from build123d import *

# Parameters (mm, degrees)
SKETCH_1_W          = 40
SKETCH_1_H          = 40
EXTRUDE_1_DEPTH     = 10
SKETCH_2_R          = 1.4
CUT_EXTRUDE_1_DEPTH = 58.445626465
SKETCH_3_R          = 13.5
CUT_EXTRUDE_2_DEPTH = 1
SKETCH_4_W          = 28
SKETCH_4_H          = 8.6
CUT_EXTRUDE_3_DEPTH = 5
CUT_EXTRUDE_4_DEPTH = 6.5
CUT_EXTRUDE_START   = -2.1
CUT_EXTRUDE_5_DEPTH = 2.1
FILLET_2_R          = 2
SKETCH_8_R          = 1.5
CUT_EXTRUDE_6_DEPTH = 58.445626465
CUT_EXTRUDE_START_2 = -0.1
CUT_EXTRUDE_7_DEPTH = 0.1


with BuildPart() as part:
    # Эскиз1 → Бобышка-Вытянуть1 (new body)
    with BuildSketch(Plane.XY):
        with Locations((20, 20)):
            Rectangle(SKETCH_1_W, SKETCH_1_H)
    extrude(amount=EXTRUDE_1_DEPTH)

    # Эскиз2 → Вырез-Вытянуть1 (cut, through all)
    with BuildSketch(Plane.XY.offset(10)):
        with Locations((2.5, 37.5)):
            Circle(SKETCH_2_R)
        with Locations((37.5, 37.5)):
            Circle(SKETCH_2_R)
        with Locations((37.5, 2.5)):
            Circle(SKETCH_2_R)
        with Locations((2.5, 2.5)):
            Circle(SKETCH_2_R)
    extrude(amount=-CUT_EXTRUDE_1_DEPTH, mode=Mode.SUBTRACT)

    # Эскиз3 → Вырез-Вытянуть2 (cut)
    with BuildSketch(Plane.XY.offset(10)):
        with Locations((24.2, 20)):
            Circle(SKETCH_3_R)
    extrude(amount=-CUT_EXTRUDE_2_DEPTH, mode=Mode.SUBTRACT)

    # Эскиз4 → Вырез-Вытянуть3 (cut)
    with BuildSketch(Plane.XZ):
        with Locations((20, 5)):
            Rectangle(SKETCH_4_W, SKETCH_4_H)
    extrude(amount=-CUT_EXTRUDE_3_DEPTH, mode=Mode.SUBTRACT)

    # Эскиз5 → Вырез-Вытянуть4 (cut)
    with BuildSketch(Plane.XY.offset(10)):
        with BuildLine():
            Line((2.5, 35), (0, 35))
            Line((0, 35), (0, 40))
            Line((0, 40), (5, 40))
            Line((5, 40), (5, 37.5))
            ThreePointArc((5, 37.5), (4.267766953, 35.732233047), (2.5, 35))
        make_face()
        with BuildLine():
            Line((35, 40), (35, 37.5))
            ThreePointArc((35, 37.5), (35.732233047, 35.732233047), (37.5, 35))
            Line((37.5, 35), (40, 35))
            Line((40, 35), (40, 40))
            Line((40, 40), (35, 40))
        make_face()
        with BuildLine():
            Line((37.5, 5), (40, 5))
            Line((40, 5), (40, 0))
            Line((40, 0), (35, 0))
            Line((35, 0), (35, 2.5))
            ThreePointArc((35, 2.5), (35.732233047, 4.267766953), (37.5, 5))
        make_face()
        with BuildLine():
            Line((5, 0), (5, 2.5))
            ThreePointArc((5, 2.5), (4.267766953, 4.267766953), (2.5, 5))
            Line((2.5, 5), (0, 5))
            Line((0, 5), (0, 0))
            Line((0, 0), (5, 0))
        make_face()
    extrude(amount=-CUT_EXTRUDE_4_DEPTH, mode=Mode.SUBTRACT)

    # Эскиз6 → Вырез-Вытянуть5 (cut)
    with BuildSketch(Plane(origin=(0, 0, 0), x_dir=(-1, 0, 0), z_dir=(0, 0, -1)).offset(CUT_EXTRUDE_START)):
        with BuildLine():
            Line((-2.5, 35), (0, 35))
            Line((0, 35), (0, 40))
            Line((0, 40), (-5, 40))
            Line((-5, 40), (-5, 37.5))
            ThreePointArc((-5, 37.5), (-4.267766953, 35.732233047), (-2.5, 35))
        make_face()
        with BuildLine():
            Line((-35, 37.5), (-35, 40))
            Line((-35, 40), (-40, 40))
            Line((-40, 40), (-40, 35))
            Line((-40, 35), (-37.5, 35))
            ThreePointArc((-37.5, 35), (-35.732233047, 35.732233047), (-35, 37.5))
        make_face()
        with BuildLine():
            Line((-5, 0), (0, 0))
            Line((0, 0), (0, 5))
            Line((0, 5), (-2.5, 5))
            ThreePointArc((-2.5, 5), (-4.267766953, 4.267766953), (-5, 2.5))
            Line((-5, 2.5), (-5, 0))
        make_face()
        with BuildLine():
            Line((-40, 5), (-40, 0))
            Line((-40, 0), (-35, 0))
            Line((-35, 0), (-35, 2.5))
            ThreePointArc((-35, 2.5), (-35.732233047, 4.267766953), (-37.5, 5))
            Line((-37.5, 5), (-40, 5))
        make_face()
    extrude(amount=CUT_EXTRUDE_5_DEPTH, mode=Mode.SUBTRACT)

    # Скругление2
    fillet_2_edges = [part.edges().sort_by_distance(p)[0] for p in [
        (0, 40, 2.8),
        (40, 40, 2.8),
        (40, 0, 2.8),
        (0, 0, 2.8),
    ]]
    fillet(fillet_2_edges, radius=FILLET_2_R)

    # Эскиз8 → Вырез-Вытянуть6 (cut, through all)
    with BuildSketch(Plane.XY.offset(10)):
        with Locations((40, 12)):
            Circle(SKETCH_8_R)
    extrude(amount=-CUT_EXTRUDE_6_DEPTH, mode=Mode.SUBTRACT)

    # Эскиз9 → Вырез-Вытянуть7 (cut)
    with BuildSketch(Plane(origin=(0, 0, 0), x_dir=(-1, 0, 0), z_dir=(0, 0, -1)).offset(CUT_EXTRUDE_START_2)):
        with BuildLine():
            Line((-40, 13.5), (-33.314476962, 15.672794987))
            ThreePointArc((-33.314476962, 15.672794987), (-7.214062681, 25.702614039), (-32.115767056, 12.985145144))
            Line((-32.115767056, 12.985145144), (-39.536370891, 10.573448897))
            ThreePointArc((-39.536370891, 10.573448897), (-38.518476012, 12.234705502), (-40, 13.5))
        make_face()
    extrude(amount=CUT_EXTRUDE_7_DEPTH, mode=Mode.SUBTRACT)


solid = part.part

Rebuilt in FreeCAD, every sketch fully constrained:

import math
import FreeCAD as App
import Part
import Sketcher
from FreeCAD import Vector


def edges_at(feature, points):
    """Names of the edges that pass closest to the given points."""
    edges = feature.Shape.Edges
    near = lambda p: min(range(len(edges)), key=lambda i: edges[i].distToShape(Part.Vertex(*p))[0])
    return sorted({f"Edge{near(p) + 1}" for p in points})


def add_polygon(sketch, points):
    """Adds a closed chain of lines whose ends are joined by coincident constraints."""
    first, n = sketch.GeometryCount, len(points)
    for a, b in zip(points, points[1:] + points[:1]):
        sketch.addGeometry(Part.LineSegment(App.Vector(*a, 0), App.Vector(*b, 0)), False)
    for i in range(n):
        sketch.addConstraint(Sketcher.Constraint("Coincident", first + i, 2, first + (i + 1) % n, 1))

doc = App.newDocument("Part")
params = doc.addObject("Spreadsheet::Sheet", "Params")
for row, (alias, value) in enumerate([
    ("sketch1_width", "40 mm"),
    ("pad1_length", "10 mm"),
    ("sketch2_diameter", "2.8 mm"),
    ("sketch3_diameter", "27 mm"),
    ("pocket2_length", "1 mm"),
    ("sketch4_width", "28 mm"),
    ("sketch4_height", "8.6 mm"),
    ("pocket3_length", "5 mm"),
    ("sketch5_radius", "2.5 mm"),
    ("sketch5_width", "5 mm"),
    ("pocket4_length", "6.5 mm"),
    ("sketch6_radius", "2.5 mm"),
    ("sketch6_width", "5 mm"),
    ("pocket5_length", "2.1 mm"),
    ("fillet_radius", "2 mm"),
    ("sketch7_diameter", "3 mm"),
    ("sketch8_radius", "14 mm"),
    ("sketch8_radius2", "1.5 mm"),
    ("pocket7_length", "0.1 mm"),
], start=1):
    params.set(f"A{row}", alias)
    params.set(f"B{row}", "=" + value)
    params.setAlias(f"B{row}", alias)

body = doc.addObject("PartDesign::Body", "Body")

# Sketch on XY plane
sketch1 = body.newObject("Sketcher::SketchObject", "Sketch")
sketch1.AttachmentSupport = (doc.getObject("XY_Plane"), [""])
sketch1.MapMode = "FlatFace"
add_polygon(sketch1, [(0, 40), (0, 0), (40, 0), (40, 40)])  # lines 0-3
sketch1.addConstraint(Sketcher.Constraint("Vertical", 0))
sketch1.addConstraint(Sketcher.Constraint("Horizontal", 1))
sketch1.addConstraint(Sketcher.Constraint("Vertical", 2))
sketch1.addConstraint(Sketcher.Constraint("Horizontal", 3))
sketch1.addConstraint(Sketcher.Constraint("Coincident", 0, 2, -1, 1))
sketch1.addConstraint(Sketcher.Constraint("Equal", 3, 0))
sketch1.addConstraint(Sketcher.Constraint("DistanceX", 1, 1, 1, 2, 40.0))
sketch1.setExpression("Constraints[10]", "Params.sketch1_width")
pad1 = body.newObject("PartDesign::Pad", "Pad")
pad1.Profile = sketch1
pad1.setExpression("Length", "Params.pad1_length")

# Sketch on XY plane
sketch2 = body.newObject("Sketcher::SketchObject", "Sketch001")
sketch2.AttachmentSupport = (doc.getObject("XY_Plane"), [""])
sketch2.MapMode = "FlatFace"
sketch2.AttachmentOffset = App.Placement(Vector(0, 0, 10), App.Rotation())
sketch2.addGeometry(Part.Circle(Vector(2.5, 37.5, 0), Vector(0, 0, 1), 1.4), False)
sketch2.addGeometry(Part.Circle(Vector(37.5, 37.5, 0), Vector(0, 0, 1), 1.4), False)
sketch2.addGeometry(Part.Circle(Vector(37.5, 2.5, 0), Vector(0, 0, 1), 1.4), False)
sketch2.addGeometry(Part.Circle(Vector(2.5, 2.5, 0), Vector(0, 0, 1), 1.4), False)
sketch2.addConstraint(Sketcher.Constraint("Equal", 0, 1))
sketch2.addConstraint(Sketcher.Constraint("Equal", 1, 2))
sketch2.addConstraint(Sketcher.Constraint("Equal", 2, 3))
sketch2.addConstraint(Sketcher.Constraint("Horizontal", 0, 3, 1, 3))
sketch2.addConstraint(Sketcher.Constraint("Horizontal", 2, 3, 3, 3))
sketch2.addConstraint(Sketcher.Constraint("Vertical", 1, 3, 2, 3))
sketch2.addConstraint(Sketcher.Constraint("Vertical", 0, 3, 3, 3))
sketch2.addConstraint(Sketcher.Constraint("Diameter", 0, 2.8))
sketch2.addConstraint(Sketcher.Constraint("DistanceX", 0, 3, 1, 3, 35.0))
sketch2.addConstraint(Sketcher.Constraint("DistanceY", 2, 3, 1, 3, 35.0))
sketch2.addConstraint(Sketcher.Constraint("DistanceX", -1, 1, 0, 3, 2.5))
sketch2.addConstraint(Sketcher.Constraint("DistanceY", -1, 1, 0, 3, 37.5))
sketch2.setExpression("Constraints[7]", "Params.sketch2_diameter")
pocket1 = body.newObject("PartDesign::Pocket", "Pocket")
pocket1.Profile = sketch2
pocket1.Type = "ThroughAll"

# Sketch on XY plane
sketch3 = body.newObject("Sketcher::SketchObject", "Sketch002")
sketch3.AttachmentSupport = (doc.getObject("XY_Plane"), [""])
sketch3.MapMode = "FlatFace"
sketch3.AttachmentOffset = App.Placement(Vector(0, 0, 10), App.Rotation())
sketch3.addGeometry(Part.Circle(Vector(24, 20, 0), Vector(0, 0, 1), 14), False)
sketch3.addConstraint(Sketcher.Constraint("Diameter", 0, 27.0))
sketch3.addConstraint(Sketcher.Constraint("DistanceY", -1, 1, 0, 3, 20.0))
sketch3.addConstraint(Sketcher.Constraint("DistanceX", -1, 1, 0, 3, 24.2))
sketch3.setExpression("Constraints[0]", "Params.sketch3_diameter")
pocket2 = body.newObject("PartDesign::Pocket", "Pocket001")
pocket2.Profile = sketch3
pocket2.setExpression("Length", "Params.pocket2_length")

# Sketch on XZ plane
sketch4 = body.newObject("Sketcher::SketchObject", "Sketch003")
sketch4.AttachmentSupport = (doc.getObject("XZ_Plane"), [""])
sketch4.MapMode = "FlatFace"
add_polygon(sketch4, [(6, 9), (6, 1), (34, 1), (34, 9)])  # lines 0-3
sketch4.addConstraint(Sketcher.Constraint("Vertical", 0))
sketch4.addConstraint(Sketcher.Constraint("Horizontal", 1))
sketch4.addConstraint(Sketcher.Constraint("Vertical", 2))
sketch4.addConstraint(Sketcher.Constraint("Horizontal", 3))
sketch4.addConstraint(Sketcher.Constraint("DistanceX", 1, 1, 1, 2, 28.0))
sketch4.addConstraint(Sketcher.Constraint("DistanceY", 0, 2, 0, 1, 8.6))
sketch4.addConstraint(Sketcher.Constraint("DistanceX", -1, 1, 0, 2, 6.0))
sketch4.addConstraint(Sketcher.Constraint("DistanceY", -1, 1, 0, 2, 0.7))
sketch4.setExpression("Constraints[8]", "Params.sketch4_width")
sketch4.setExpression("Constraints[9]", "Params.sketch4_height")
pocket3 = body.newObject("PartDesign::Pocket", "Pocket002")
pocket3.Profile = sketch4
pocket3.setExpression("Length", "Params.pocket3_length")

# Sketch on XY plane
sketch5 = body.newObject("Sketcher::SketchObject", "Sketch004")
sketch5.AttachmentSupport = (doc.getObject("XY_Plane"), [""])
sketch5.MapMode = "FlatFace"
sketch5.AttachmentOffset = App.Placement(Vector(0, 0, 10), App.Rotation())
sketch5.addGeometry(Part.LineSegment(Vector(0, 35, 0), Vector(2.5, 35, 0)), False)
sketch5.addGeometry(Part.ArcOfCircle(Part.Circle(Vector(2.5, 37.5, 0), Vector(0, 0, 1), 2.5), math.radians(-90), math.radians(0)), False)
sketch5.addGeometry(Part.LineSegment(Vector(5, 37.5, 0), Vector(5, 40, 0)), False)
sketch5.addGeometry(Part.LineSegment(Vector(5, 40, 0), Vector(0, 40, 0)), False)
sketch5.addGeometry(Part.LineSegment(Vector(0, 40, 0), Vector(0, 35, 0)), False)
sketch5.addGeometry(Part.LineSegment(Vector(35, 40, 0), Vector(35, 37.5, 0)), False)
sketch5.addGeometry(Part.ArcOfCircle(Part.Circle(Vector(37.5, 37.5, 0), Vector(0, 0, 1), 2.5), math.radians(180), math.radians(270)), False)
sketch5.addGeometry(Part.LineSegment(Vector(37.5, 35, 0), Vector(40, 35, 0)), False)
sketch5.addGeometry(Part.LineSegment(Vector(40, 35, 0), Vector(40, 40, 0)), False)
sketch5.addGeometry(Part.LineSegment(Vector(40, 40, 0), Vector(35, 40, 0)), False)
sketch5.addGeometry(Part.LineSegment(Vector(40, 5, 0), Vector(37.5, 5, 0)), False)
sketch5.addGeometry(Part.ArcOfCircle(Part.Circle(Vector(37.5, 2.5, 0), Vector(0, 0, 1), 2.5), math.radians(90), math.radians(180)), False)
sketch5.addGeometry(Part.LineSegment(Vector(35, 2.5, 0), Vector(35, 0, 0)), False)
sketch5.addGeometry(Part.LineSegment(Vector(35, 0, 0), Vector(40, 0, 0)), False)
sketch5.addGeometry(Part.LineSegment(Vector(40, 0, 0), Vector(40, 5, 0)), False)
sketch5.addGeometry(Part.LineSegment(Vector(5, 0, 0), Vector(5, 2.5, 0)), False)
sketch5.addGeometry(Part.ArcOfCircle(Part.Circle(Vector(2.5, 2.5, 0), Vector(0, 0, 1), 2.5), math.radians(0), math.radians(90)), False)
sketch5.addGeometry(Part.LineSegment(Vector(2.5, 5, 0), Vector(0, 5, 0)), False)
sketch5.addGeometry(Part.LineSegment(Vector(0, 5, 0), Vector(0, 0, 0)), False)
sketch5.addGeometry(Part.LineSegment(Vector(0, 0, 0), Vector(5, 0, 0)), False)
sketch5.addConstraint(Sketcher.Constraint("Tangent", 0, 2, 1, 1))
sketch5.addConstraint(Sketcher.Constraint("Tangent", 1, 2, 2, 1))
sketch5.addConstraint(Sketcher.Constraint("Coincident", 2, 2, 3, 1))
sketch5.addConstraint(Sketcher.Constraint("Coincident", 3, 2, 4, 1))
sketch5.addConstraint(Sketcher.Constraint("Coincident", 4, 2, 0, 1))
sketch5.addConstraint(Sketcher.Constraint("Tangent", 5, 2, 6, 1))
sketch5.addConstraint(Sketcher.Constraint("Tangent", 6, 2, 7, 1))
sketch5.addConstraint(Sketcher.Constraint("Coincident", 7, 2, 8, 1))
sketch5.addConstraint(Sketcher.Constraint("Coincident", 8, 2, 9, 1))
sketch5.addConstraint(Sketcher.Constraint("Coincident", 9, 2, 5, 1))
sketch5.addConstraint(Sketcher.Constraint("Tangent", 10, 2, 11, 1))
sketch5.addConstraint(Sketcher.Constraint("Tangent", 11, 2, 12, 1))
sketch5.addConstraint(Sketcher.Constraint("Coincident", 12, 2, 13, 1))
sketch5.addConstraint(Sketcher.Constraint("Coincident", 13, 2, 14, 1))
sketch5.addConstraint(Sketcher.Constraint("Coincident", 14, 2, 10, 1))
sketch5.addConstraint(Sketcher.Constraint("Tangent", 15, 2, 16, 1))
sketch5.addConstraint(Sketcher.Constraint("Tangent", 16, 2, 17, 1))
sketch5.addConstraint(Sketcher.Constraint("Coincident", 17, 2, 18, 1))
sketch5.addConstraint(Sketcher.Constraint("Coincident", 18, 2, 19, 1))
sketch5.addConstraint(Sketcher.Constraint("Coincident", 19, 2, 15, 1))
sketch5.addConstraint(Sketcher.Constraint("Horizontal", 0))
sketch5.addConstraint(Sketcher.Constraint("Vertical", 2))
sketch5.addConstraint(Sketcher.Constraint("Horizontal", 3))
sketch5.addConstraint(Sketcher.Constraint("Vertical", 4))
sketch5.addConstraint(Sketcher.Constraint("Vertical", 5))
sketch5.addConstraint(Sketcher.Constraint("Horizontal", 7))
sketch5.addConstraint(Sketcher.Constraint("Vertical", 8))
sketch5.addConstraint(Sketcher.Constraint("Horizontal", 9))
sketch5.addConstraint(Sketcher.Constraint("Horizontal", 10))
sketch5.addConstraint(Sketcher.Constraint("Vertical", 12))
sketch5.addConstraint(Sketcher.Constraint("Horizontal", 13))
sketch5.addConstraint(Sketcher.Constraint("Vertical", 14))
sketch5.addConstraint(Sketcher.Constraint("Vertical", 15))
sketch5.addConstraint(Sketcher.Constraint("Horizontal", 17))
sketch5.addConstraint(Sketcher.Constraint("Vertical", 18))
sketch5.addConstraint(Sketcher.Constraint("Horizontal", 19))
sketch5.addConstraint(Sketcher.Constraint("Coincident", 18, 2, -1, 1))
sketch5.addConstraint(Sketcher.Constraint("Equal", 1, 6))
sketch5.addConstraint(Sketcher.Constraint("Equal", 6, 11))
sketch5.addConstraint(Sketcher.Constraint("Equal", 11, 16))
sketch5.addConstraint(Sketcher.Constraint("PointOnObject", 3, 2, -2))
sketch5.addConstraint(Sketcher.Constraint("PointOnObject", 12, 2, -1))
sketch5.addConstraint(Sketcher.Constraint("Horizontal", 1, 3, 6, 3))
sketch5.addConstraint(Sketcher.Constraint("Horizontal", 11, 3, 16, 3))
sketch5.addConstraint(Sketcher.Constraint("Horizontal", 3, 2, 8, 2))
sketch5.addConstraint(Sketcher.Constraint("Vertical", 6, 3, 11, 3))
sketch5.addConstraint(Sketcher.Constraint("Vertical", 1, 3, 16, 3))
sketch5.addConstraint(Sketcher.Constraint("Vertical", 8, 2, 13, 2))
sketch5.addConstraint(Sketcher.Constraint("Equal", 0, 7))
sketch5.addConstraint(Sketcher.Constraint("Equal", 17, 2))
sketch5.addConstraint(Sketcher.Constraint("Equal", 5, 12))
sketch5.addConstraint(Sketcher.Constraint("Radius", 1, 2.5))
sketch5.addConstraint(Sketcher.Constraint("DistanceX", 3, 2, 3, 1, 5.0))
sketch5.addConstraint(Sketcher.Constraint("DistanceY", -1, 1, 0, 2, 35.0))
sketch5.addConstraint(Sketcher.Constraint("DistanceX", -1, 1, 5, 2, 35.0))
sketch5.setExpression("Constraints[51]", "Params.sketch5_radius")
sketch5.setExpression("Constraints[52]", "Params.sketch5_width")
pocket4 = body.newObject("PartDesign::Pocket", "Pocket003")
pocket4.Profile = sketch5
pocket4.setExpression("Length", "Params.pocket4_length")

# Sketch on XY plane
sketch6 = body.newObject("Sketcher::SketchObject", "Sketch005")
sketch6.AttachmentSupport = (doc.getObject("XY_Plane"), [""])
sketch6.MapMode = "FlatFace"
sketch6.AttachmentOffset = App.Placement(Vector(0, 0, 2.1), App.Rotation())
sketch6.addGeometry(Part.LineSegment(Vector(2.5, 35, 0), Vector(0, 35, 0)), False)
sketch6.addGeometry(Part.LineSegment(Vector(0, 35, 0), Vector(0, 40, 0)), False)
sketch6.addGeometry(Part.LineSegment(Vector(0, 40, 0), Vector(5, 40, 0)), False)
sketch6.addGeometry(Part.LineSegment(Vector(5, 40, 0), Vector(5, 37.5, 0)), False)
sketch6.addGeometry(Part.ArcOfCircle(Part.Circle(Vector(2.5, 37.5, 0), Vector(0, 0, 1), 2.5), math.radians(-90), math.radians(0)), False)
sketch6.addGeometry(Part.LineSegment(Vector(35, 37.5, 0), Vector(35, 40, 0)), False)
sketch6.addGeometry(Part.LineSegment(Vector(35, 40, 0), Vector(40, 40, 0)), False)
sketch6.addGeometry(Part.LineSegment(Vector(40, 40, 0), Vector(40, 35, 0)), False)
sketch6.addGeometry(Part.LineSegment(Vector(40, 35, 0), Vector(37.5, 35, 0)), False)
sketch6.addGeometry(Part.ArcOfCircle(Part.Circle(Vector(37.5, 37.5, 0), Vector(0, 0, 1), 2.5), math.radians(180), math.radians(270)), False)
sketch6.addGeometry(Part.LineSegment(Vector(5, 0, 0), Vector(0, 0, 0)), False)
sketch6.addGeometry(Part.LineSegment(Vector(0, 0, 0), Vector(0, 5, 0)), False)
sketch6.addGeometry(Part.LineSegment(Vector(0, 5, 0), Vector(2.5, 5, 0)), False)
sketch6.addGeometry(Part.ArcOfCircle(Part.Circle(Vector(2.5, 2.5, 0), Vector(0, 0, 1), 2.5), math.radians(0), math.radians(90)), False)
sketch6.addGeometry(Part.LineSegment(Vector(5, 2.5, 0), Vector(5, 0, 0)), False)
sketch6.addGeometry(Part.LineSegment(Vector(40, 5, 0), Vector(40, 0, 0)), False)
sketch6.addGeometry(Part.LineSegment(Vector(40, 0, 0), Vector(35, 0, 0)), False)
sketch6.addGeometry(Part.LineSegment(Vector(35, 0, 0), Vector(35, 2.5, 0)), False)
sketch6.addGeometry(Part.ArcOfCircle(Part.Circle(Vector(37.5, 2.5, 0), Vector(0, 0, 1), 2.5), math.radians(90), math.radians(180)), False)
sketch6.addGeometry(Part.LineSegment(Vector(37.5, 5, 0), Vector(40, 5, 0)), False)
sketch6.addConstraint(Sketcher.Constraint("Coincident", 0, 2, 1, 1))
sketch6.addConstraint(Sketcher.Constraint("Coincident", 1, 2, 2, 1))
sketch6.addConstraint(Sketcher.Constraint("Coincident", 2, 2, 3, 1))
sketch6.addConstraint(Sketcher.Constraint("Tangent", 3, 2, 4, 2))
sketch6.addConstraint(Sketcher.Constraint("Tangent", 4, 1, 0, 1))
sketch6.addConstraint(Sketcher.Constraint("Coincident", 5, 2, 6, 1))
sketch6.addConstraint(Sketcher.Constraint("Coincident", 6, 2, 7, 1))
sketch6.addConstraint(Sketcher.Constraint("Coincident", 7, 2, 8, 1))
sketch6.addConstraint(Sketcher.Constraint("Tangent", 8, 2, 9, 2))
sketch6.addConstraint(Sketcher.Constraint("Tangent", 9, 1, 5, 1))
sketch6.addConstraint(Sketcher.Constraint("Coincident", 10, 2, 11, 1))
sketch6.addConstraint(Sketcher.Constraint("Coincident", 11, 2, 12, 1))
sketch6.addConstraint(Sketcher.Constraint("Tangent", 12, 2, 13, 2))
sketch6.addConstraint(Sketcher.Constraint("Tangent", 13, 1, 14, 1))
sketch6.addConstraint(Sketcher.Constraint("Coincident", 14, 2, 10, 1))
sketch6.addConstraint(Sketcher.Constraint("Coincident", 15, 2, 16, 1))
sketch6.addConstraint(Sketcher.Constraint("Coincident", 16, 2, 17, 1))
sketch6.addConstraint(Sketcher.Constraint("Tangent", 17, 2, 18, 2))
sketch6.addConstraint(Sketcher.Constraint("Tangent", 18, 1, 19, 1))
sketch6.addConstraint(Sketcher.Constraint("Coincident", 19, 2, 15, 1))
sketch6.addConstraint(Sketcher.Constraint("Horizontal", 0))
sketch6.addConstraint(Sketcher.Constraint("Vertical", 1))
sketch6.addConstraint(Sketcher.Constraint("Horizontal", 2))
sketch6.addConstraint(Sketcher.Constraint("Vertical", 3))
sketch6.addConstraint(Sketcher.Constraint("Vertical", 5))
sketch6.addConstraint(Sketcher.Constraint("Horizontal", 6))
sketch6.addConstraint(Sketcher.Constraint("Vertical", 7))
sketch6.addConstraint(Sketcher.Constraint("Horizontal", 8))
sketch6.addConstraint(Sketcher.Constraint("Horizontal", 10))
sketch6.addConstraint(Sketcher.Constraint("Vertical", 11))
sketch6.addConstraint(Sketcher.Constraint("Horizontal", 12))
sketch6.addConstraint(Sketcher.Constraint("Vertical", 14))
sketch6.addConstraint(Sketcher.Constraint("Vertical", 15))
sketch6.addConstraint(Sketcher.Constraint("Horizontal", 16))
sketch6.addConstraint(Sketcher.Constraint("Vertical", 17))
sketch6.addConstraint(Sketcher.Constraint("Horizontal", 19))
sketch6.addConstraint(Sketcher.Constraint("Coincident", 10, 2, -1, 1))
sketch6.addConstraint(Sketcher.Constraint("Equal", 4, 9))
sketch6.addConstraint(Sketcher.Constraint("Equal", 9, 13))
sketch6.addConstraint(Sketcher.Constraint("Equal", 13, 18))
sketch6.addConstraint(Sketcher.Constraint("PointOnObject", 0, 2, -2))
sketch6.addConstraint(Sketcher.Constraint("PointOnObject", 15, 2, -1))
sketch6.addConstraint(Sketcher.Constraint("Horizontal", 4, 3, 9, 3))
sketch6.addConstraint(Sketcher.Constraint("Horizontal", 13, 3, 18, 3))
sketch6.addConstraint(Sketcher.Constraint("Horizontal", 2, 2, 5, 2))
sketch6.addConstraint(Sketcher.Constraint("Vertical", 4, 3, 13, 3))
sketch6.addConstraint(Sketcher.Constraint("Vertical", 9, 3, 18, 3))
sketch6.addConstraint(Sketcher.Constraint("Vertical", 7, 2, 15, 2))
sketch6.addConstraint(Sketcher.Constraint("Equal", 2, 6))
sketch6.addConstraint(Sketcher.Constraint("Equal", 16, 1))
sketch6.addConstraint(Sketcher.Constraint("Equal", 7, 11))
sketch6.addConstraint(Sketcher.Constraint("Radius", 4, 2.5))
sketch6.addConstraint(Sketcher.Constraint("DistanceX", 2, 1, 2, 2, 5.0))
sketch6.addConstraint(Sketcher.Constraint("DistanceY", -1, 1, 0, 2, 35.0))
sketch6.addConstraint(Sketcher.Constraint("DistanceX", -1, 1, 5, 2, 35.0))
sketch6.setExpression("Constraints[51]", "Params.sketch6_radius")
sketch6.setExpression("Constraints[52]", "Params.sketch6_width")
pocket5 = body.newObject("PartDesign::Pocket", "Pocket004")
pocket5.Profile = sketch6
pocket5.setExpression("Length", "Params.pocket5_length")
doc.recompute()

fillet = body.newObject("PartDesign::Fillet", "Fillet")
fillet.Base = (pocket5, edges_at(pocket5, [
    (0, 40, 2.8),
    (40, 40, 2.8),
    (40, 0, 2.8),
    (0, 0, 2.8),
]))
fillet.setExpression("Radius", "Params.fillet_radius")

# Sketch on XY plane
sketch7 = body.newObject("Sketcher::SketchObject", "Sketch006")
sketch7.AttachmentSupport = (doc.getObject("XY_Plane"), [""])
sketch7.MapMode = "FlatFace"
sketch7.AttachmentOffset = App.Placement(Vector(0, 0, 10), App.Rotation())
sketch7.addGeometry(Part.Circle(Vector(40, 12, 0), Vector(0, 0, 1), 1.5), False)
sketch7.addConstraint(Sketcher.Constraint("Diameter", 0, 3.0))
sketch7.addConstraint(Sketcher.Constraint("DistanceX", -1, 1, 0, 3, 40.0))
sketch7.addConstraint(Sketcher.Constraint("DistanceY", -1, 1, 0, 3, 12.0))
sketch7.setExpression("Constraints[0]", "Params.sketch7_diameter")
pocket6 = body.newObject("PartDesign::Pocket", "Pocket005")
pocket6.Profile = sketch7
pocket6.Type = "ThroughAll"

# Sketch on XY plane
sketch8 = body.newObject("Sketcher::SketchObject", "Sketch007")
sketch8.AttachmentSupport = (doc.getObject("XY_Plane"), [""])
sketch8.MapMode = "FlatFace"
sketch8.AttachmentOffset = App.Placement(Vector(0, 0, 0.1), App.Rotation())
sketch8.addGeometry(Part.LineSegment(Vector(33.3, 15.7, 0), Vector(40, 13.5, 0)), False)
sketch8.addGeometry(Part.ArcOfCircle(Part.Circle(Vector(40, 12, 0), Vector(0, 0, 1), 1.5), math.radians(90), math.radians(252)), False)
sketch8.addGeometry(Part.LineSegment(Vector(39.5, 10.6, 0), Vector(32.1, 13, 0)), False)
sketch8.addGeometry(Part.ArcOfCircle(Part.Circle(Vector(20, 20, 0), Vector(0, 0, 1), 14), math.radians(-18), math.radians(330)), False)
sketch8.addConstraint(Sketcher.Constraint("Coincident", 0, 2, 1, 1))
sketch8.addConstraint(Sketcher.Constraint("Tangent", 1, 2, 2, 1))
sketch8.addConstraint(Sketcher.Constraint("Coincident", 2, 2, 3, 2))
sketch8.addConstraint(Sketcher.Constraint("Coincident", 3, 1, 0, 1))
sketch8.addConstraint(Sketcher.Constraint("Parallel", 0, 2))
sketch8.addConstraint(Sketcher.Constraint("Vertical", 1, 3, 0, 2))
sketch8.addConstraint(Sketcher.Constraint("Radius", 3, 14.0))
sketch8.addConstraint(Sketcher.Constraint("Radius", 1, 1.5))
sketch8.addConstraint(Sketcher.Constraint("DistanceX", -1, 1, 1, 3, 40.0))
sketch8.addConstraint(Sketcher.Constraint("DistanceY", -1, 1, 1, 3, 12.0))
sketch8.addConstraint(Sketcher.Constraint("DistanceX", -1, 1, 3, 3, 20.0))
sketch8.addConstraint(Sketcher.Constraint("DistanceY", -1, 1, 3, 3, 20.0))
sketch8.addConstraint(Sketcher.Constraint("Distance", 2, 7.802669))
sketch8.setExpression("Constraints[6]", "Params.sketch8_radius")
sketch8.setExpression("Constraints[7]", "Params.sketch8_radius2")
pocket7 = body.newObject("PartDesign::Pocket", "Pocket006")
pocket7.Profile = sketch8
pocket7.setExpression("Length", "Params.pocket7_length")

doc.recompute()
